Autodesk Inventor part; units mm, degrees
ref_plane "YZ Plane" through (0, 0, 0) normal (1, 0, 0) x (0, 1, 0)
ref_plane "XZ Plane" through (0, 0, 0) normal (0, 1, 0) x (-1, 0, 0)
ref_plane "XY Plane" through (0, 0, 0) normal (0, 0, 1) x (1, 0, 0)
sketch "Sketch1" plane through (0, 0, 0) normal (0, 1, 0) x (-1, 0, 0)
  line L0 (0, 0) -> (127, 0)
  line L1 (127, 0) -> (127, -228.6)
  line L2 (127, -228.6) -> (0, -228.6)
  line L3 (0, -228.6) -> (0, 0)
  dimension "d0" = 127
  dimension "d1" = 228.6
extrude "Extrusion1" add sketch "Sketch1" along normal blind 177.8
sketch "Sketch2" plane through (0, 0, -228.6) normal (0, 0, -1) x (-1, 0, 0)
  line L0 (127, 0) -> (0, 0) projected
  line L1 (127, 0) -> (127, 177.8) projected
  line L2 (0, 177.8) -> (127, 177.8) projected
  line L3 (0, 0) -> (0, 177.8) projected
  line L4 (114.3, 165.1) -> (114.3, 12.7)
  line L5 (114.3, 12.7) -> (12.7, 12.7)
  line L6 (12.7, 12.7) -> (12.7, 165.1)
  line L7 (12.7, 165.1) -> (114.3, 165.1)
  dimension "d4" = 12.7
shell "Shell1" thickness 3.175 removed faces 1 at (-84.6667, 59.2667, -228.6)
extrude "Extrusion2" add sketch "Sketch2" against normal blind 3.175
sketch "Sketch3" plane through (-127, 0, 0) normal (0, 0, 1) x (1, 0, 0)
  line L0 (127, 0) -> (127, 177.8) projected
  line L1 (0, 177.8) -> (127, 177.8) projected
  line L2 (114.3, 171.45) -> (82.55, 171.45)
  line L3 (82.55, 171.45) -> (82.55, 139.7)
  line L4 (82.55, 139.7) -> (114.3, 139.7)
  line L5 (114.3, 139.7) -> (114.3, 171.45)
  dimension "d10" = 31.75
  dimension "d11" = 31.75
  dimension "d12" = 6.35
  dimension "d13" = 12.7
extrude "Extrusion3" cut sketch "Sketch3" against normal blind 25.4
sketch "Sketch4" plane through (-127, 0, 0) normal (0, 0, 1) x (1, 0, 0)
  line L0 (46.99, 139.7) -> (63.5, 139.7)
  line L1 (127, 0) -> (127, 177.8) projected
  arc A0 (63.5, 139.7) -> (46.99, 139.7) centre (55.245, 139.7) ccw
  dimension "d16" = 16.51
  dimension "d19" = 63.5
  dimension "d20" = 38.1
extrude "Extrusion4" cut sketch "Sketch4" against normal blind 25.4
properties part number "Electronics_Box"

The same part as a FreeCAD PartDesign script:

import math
import FreeCAD as App
import Part
import Sketcher
from FreeCAD import Vector
Q = App.Units.Quantity


def faces_at(feature, points):
    """Names of the faces that lie closest to the given points."""
    faces = feature.Shape.Faces
    near = lambda p: min(range(len(faces)), key=lambda i: faces[i].distToShape(Part.Vertex(*p))[0])
    return sorted({f"Face{near(p) + 1}" for p in points})

doc = App.newDocument("Part")
params = doc.addObject("Spreadsheet::Sheet", "Params")
for row, (alias, value) in enumerate([
    ("sketch1_width", "5 in"),
    ("sketch1_height", "9 in"),
    ("pad1_length", "7 in"),
    ("thickness_wall", "0.125 in"),
    ("sketch2_width", "5 in"),
    ("sketch2_height", "7 in"),
    ("pad2_length", "0.125 in"),
    ("sketch3_width", "1.25 in"),
    ("pocket1_length", "1 in"),
    ("sketch4_radius", "0.325 in"),
    ("pocket2_length", "1 in"),
], start=1):
    params.set(f"A{row}", alias)
    params.set(f"B{row}", "=" + value)
    params.setAlias(f"B{row}", alias)

body = doc.addObject("PartDesign::Body", "Body")

# Sketch on XZ plane
sketch1 = body.newObject("Sketcher::SketchObject", "Sketch")
sketch1.AttachmentSupport = (doc.getObject("XZ_Plane"), [""])
sketch1.MapMode = "FlatFace"
sketch1.addGeometry([
    Part.LineSegment(Vector(-127, 0, 0), Vector(0, 0, 0)),
    Part.LineSegment(Vector(0, 0, 0), Vector(0, -229, 0)),
    Part.LineSegment(Vector(0, -229, 0), Vector(-127, -229, 0)),
    Part.LineSegment(Vector(-127, -229, 0), Vector(-127, 0, 0)),
], False)
sketch1.addConstraint([
    Sketcher.Constraint("Coincident", 0, 2, 1, 1),
    Sketcher.Constraint("Coincident", 1, 2, 2, 1),
    Sketcher.Constraint("Coincident", 2, 2, 3, 1),
    Sketcher.Constraint("Coincident", 3, 2, 0, 1),
    Sketcher.Constraint("Horizontal", 0),
    Sketcher.Constraint("Vertical", 1),
    Sketcher.Constraint("Horizontal", 2),
    Sketcher.Constraint("Vertical", 3),
    Sketcher.Constraint("Coincident", 0, 2, -1, 1),
    Sketcher.Constraint("DistanceX", 0, 1, 0, 2, Q("5 in")),
    Sketcher.Constraint("DistanceY", 1, 2, 1, 1, Q("9 in")),
])
sketch1.setExpression("Constraints[9]", "Params.sketch1_width")
sketch1.setExpression("Constraints[10]", "Params.sketch1_height")
pad1 = body.newObject("PartDesign::Pad", "Pad")
pad1.Profile = sketch1
pad1.setExpression("Length", "Params.pad1_length")
pad1.Reversed = True
doc.recompute()

thickness = body.newObject("PartDesign::Thickness", "Thickness")
thickness.Base = (pad1, faces_at(pad1, [(-84.667, 59.267, -228.6)]))
thickness.setExpression("Value", "Params.thickness_wall")
thickness.Reversed = True
thickness.Join = "Intersection"

# Sketch on XY plane
sketch2 = body.newObject("Sketcher::SketchObject", "Sketch001")
sketch2.AttachmentSupport = (doc.getObject("XY_Plane"), [""])
sketch2.MapMode = "FlatFace"
sketch2.AttachmentOffset = App.Placement(Vector(0, 0, -9 * 25.4), App.Rotation())
sketch2.addGeometry([
    Part.LineSegment(Vector(0, 0, 0), Vector(-127, 0, 0)),  # 0
    Part.LineSegment(Vector(-127, 0, 0), Vector(-127, 178, 0)),  # 1
    Part.LineSegment(Vector(-127, 178, 0), Vector(0, 178, 0)),  # 2
    Part.LineSegment(Vector(0, 178, 0), Vector(0, 0, 0)),  # 3
    Part.LineSegment(Vector(-13, 165, 0), Vector(-114, 165, 0)),  # 4
    Part.LineSegment(Vector(-114, 165, 0), Vector(-114, 13, 0)),  # 5
    Part.LineSegment(Vector(-114, 13, 0), Vector(-13, 13, 0)),  # 6
    Part.LineSegment(Vector(-13, 13, 0), Vector(-13, 165, 0)),  # 7
], False)
sketch2.addConstraint([
    Sketcher.Constraint("Coincident", 0, 2, 1, 1),
    Sketcher.Constraint("Coincident", 1, 2, 2, 1),
    Sketcher.Constraint("Coincident", 2, 2, 3, 1),
    Sketcher.Constraint("Coincident", 3, 2, 0, 1),
    Sketcher.Constraint("Coincident", 4, 2, 5, 1),
    Sketcher.Constraint("Coincident", 5, 2, 6, 1),
    Sketcher.Constraint("Coincident", 6, 2, 7, 1),
    Sketcher.Constraint("Coincident", 7, 2, 4, 1),
    Sketcher.Constraint("Horizontal", 0),
    Sketcher.Constraint("Vertical", 1),
    Sketcher.Constraint("Horizontal", 2),
    Sketcher.Constraint("Vertical", 3),
    Sketcher.Constraint("Horizontal", 4),
    Sketcher.Constraint("Vertical", 5),
    Sketcher.Constraint("Horizontal", 6),
    Sketcher.Constraint("Vertical", 7),
    Sketcher.Constraint("Coincident", 3, 2, -1, 1),
    Sketcher.Constraint("DistanceY", -1, 1, 5, 2, Q("0.5 in")),
    Sketcher.Constraint("DistanceX", 6, 2, -1, 1, Q("0.5 in")),
    Sketcher.Constraint("DistanceX", 1, 2, 4, 2, Q("0.5 in")),
    Sketcher.Constraint("DistanceY", 4, 2, 1, 2, Q("0.5 in")),
    Sketcher.Constraint("DistanceX", 0, 2, 0, 1, Q("5 in")),
    Sketcher.Constraint("DistanceY", 1, 1, 1, 2, Q("7 in")),
])
sketch2.setExpression("Constraints[21]", "Params.sketch2_width")
sketch2.setExpression("Constraints[22]", "Params.sketch2_height")
pad2 = body.newObject("PartDesign::Pad", "Pad001")
pad2.Profile = sketch2
pad2.setExpression("Length", "Params.pad2_length")

# Sketch on XY plane
sketch3 = body.newObject("Sketcher::SketchObject", "Sketch002")
sketch3.AttachmentSupport = (doc.getObject("XY_Plane"), [""])
sketch3.MapMode = "FlatFace"
sketch3.addGeometry([
    Part.LineSegment(Vector(-13, 140, 0), Vector(-13, 171, 0)),
    Part.LineSegment(Vector(-13, 171, 0), Vector(-44, 171, 0)),
    Part.LineSegment(Vector(-44, 171, 0), Vector(-44, 140, 0)),
    Part.LineSegment(Vector(-44, 140, 0), Vector(-13, 140, 0)),
], False)
sketch3.addConstraint([
    Sketcher.Constraint("Coincident", 0, 2, 1, 1),
    Sketcher.Constraint("Coincident", 1, 2, 2, 1),
    Sketcher.Constraint("Coincident", 2, 2, 3, 1),
    Sketcher.Constraint("Coincident", 3, 2, 0, 1),
    Sketcher.Constraint("Vertical", 0),
    Sketcher.Constraint("Horizontal", 1),
    Sketcher.Constraint("Vertical", 2),
    Sketcher.Constraint("Horizontal", 3),
    Sketcher.Constraint("Equal", 3, 0),
    Sketcher.Constraint("DistanceX", 1, 2, 1, 1, Q("1.25 in")),
    Sketcher.Constraint("DistanceX", 0, 2, -1, 1, Q("0.5 in")),
    Sketcher.Constraint("DistanceY", -1, 1, 2, 2, Q("5.5 in")),
])
sketch3.setExpression("Constraints[9]", "Params.sketch3_width")
pocket1 = body.newObject("PartDesign::Pocket", "Pocket")
pocket1.Profile = sketch3
pocket1.setExpression("Length", "Params.pocket1_length")

# Sketch on XY plane
sketch4 = body.newObject("Sketcher::SketchObject", "Sketch003")
sketch4.AttachmentSupport = (doc.getObject("XY_Plane"), [""])
sketch4.MapMode = "FlatFace"
sketch4.addGeometry([
    Part.ArcOfCircle(Part.Circle(Vector(-72, 140, 0), Vector(0, 0, 1), 8), math.radians(0), math.radians(180)),
    Part.LineSegment(Vector(-80, 140, 0), Vector(-64, 140, 0)),
], False)
sketch4.addConstraint([
    Sketcher.Constraint("Coincident", 0, 1, 1, 2),
    Sketcher.Constraint("Coincident", 1, 1, 0, 2),
    Sketcher.Constraint("Horizontal", 1),
    Sketcher.Constraint("Radius", 0, Q("0.325 in")),
    Sketcher.Constraint("DistanceX", 0, 1, -1, 1, Q("2.5 in")),
    Sketcher.Constraint("DistanceY", -1, 1, 0, 3, Q("5.5 in")),
    Sketcher.Constraint("DistanceY", -1, 1, 0, 1, Q("5.5 in")),
])
sketch4.setExpression("Constraints[3]", "Params.sketch4_radius")
pocket2 = body.newObject("PartDesign::Pocket", "Pocket001")
pocket2.Profile = sketch4
pocket2.setExpression("Length", "Params.pocket2_length")

doc.recompute()
